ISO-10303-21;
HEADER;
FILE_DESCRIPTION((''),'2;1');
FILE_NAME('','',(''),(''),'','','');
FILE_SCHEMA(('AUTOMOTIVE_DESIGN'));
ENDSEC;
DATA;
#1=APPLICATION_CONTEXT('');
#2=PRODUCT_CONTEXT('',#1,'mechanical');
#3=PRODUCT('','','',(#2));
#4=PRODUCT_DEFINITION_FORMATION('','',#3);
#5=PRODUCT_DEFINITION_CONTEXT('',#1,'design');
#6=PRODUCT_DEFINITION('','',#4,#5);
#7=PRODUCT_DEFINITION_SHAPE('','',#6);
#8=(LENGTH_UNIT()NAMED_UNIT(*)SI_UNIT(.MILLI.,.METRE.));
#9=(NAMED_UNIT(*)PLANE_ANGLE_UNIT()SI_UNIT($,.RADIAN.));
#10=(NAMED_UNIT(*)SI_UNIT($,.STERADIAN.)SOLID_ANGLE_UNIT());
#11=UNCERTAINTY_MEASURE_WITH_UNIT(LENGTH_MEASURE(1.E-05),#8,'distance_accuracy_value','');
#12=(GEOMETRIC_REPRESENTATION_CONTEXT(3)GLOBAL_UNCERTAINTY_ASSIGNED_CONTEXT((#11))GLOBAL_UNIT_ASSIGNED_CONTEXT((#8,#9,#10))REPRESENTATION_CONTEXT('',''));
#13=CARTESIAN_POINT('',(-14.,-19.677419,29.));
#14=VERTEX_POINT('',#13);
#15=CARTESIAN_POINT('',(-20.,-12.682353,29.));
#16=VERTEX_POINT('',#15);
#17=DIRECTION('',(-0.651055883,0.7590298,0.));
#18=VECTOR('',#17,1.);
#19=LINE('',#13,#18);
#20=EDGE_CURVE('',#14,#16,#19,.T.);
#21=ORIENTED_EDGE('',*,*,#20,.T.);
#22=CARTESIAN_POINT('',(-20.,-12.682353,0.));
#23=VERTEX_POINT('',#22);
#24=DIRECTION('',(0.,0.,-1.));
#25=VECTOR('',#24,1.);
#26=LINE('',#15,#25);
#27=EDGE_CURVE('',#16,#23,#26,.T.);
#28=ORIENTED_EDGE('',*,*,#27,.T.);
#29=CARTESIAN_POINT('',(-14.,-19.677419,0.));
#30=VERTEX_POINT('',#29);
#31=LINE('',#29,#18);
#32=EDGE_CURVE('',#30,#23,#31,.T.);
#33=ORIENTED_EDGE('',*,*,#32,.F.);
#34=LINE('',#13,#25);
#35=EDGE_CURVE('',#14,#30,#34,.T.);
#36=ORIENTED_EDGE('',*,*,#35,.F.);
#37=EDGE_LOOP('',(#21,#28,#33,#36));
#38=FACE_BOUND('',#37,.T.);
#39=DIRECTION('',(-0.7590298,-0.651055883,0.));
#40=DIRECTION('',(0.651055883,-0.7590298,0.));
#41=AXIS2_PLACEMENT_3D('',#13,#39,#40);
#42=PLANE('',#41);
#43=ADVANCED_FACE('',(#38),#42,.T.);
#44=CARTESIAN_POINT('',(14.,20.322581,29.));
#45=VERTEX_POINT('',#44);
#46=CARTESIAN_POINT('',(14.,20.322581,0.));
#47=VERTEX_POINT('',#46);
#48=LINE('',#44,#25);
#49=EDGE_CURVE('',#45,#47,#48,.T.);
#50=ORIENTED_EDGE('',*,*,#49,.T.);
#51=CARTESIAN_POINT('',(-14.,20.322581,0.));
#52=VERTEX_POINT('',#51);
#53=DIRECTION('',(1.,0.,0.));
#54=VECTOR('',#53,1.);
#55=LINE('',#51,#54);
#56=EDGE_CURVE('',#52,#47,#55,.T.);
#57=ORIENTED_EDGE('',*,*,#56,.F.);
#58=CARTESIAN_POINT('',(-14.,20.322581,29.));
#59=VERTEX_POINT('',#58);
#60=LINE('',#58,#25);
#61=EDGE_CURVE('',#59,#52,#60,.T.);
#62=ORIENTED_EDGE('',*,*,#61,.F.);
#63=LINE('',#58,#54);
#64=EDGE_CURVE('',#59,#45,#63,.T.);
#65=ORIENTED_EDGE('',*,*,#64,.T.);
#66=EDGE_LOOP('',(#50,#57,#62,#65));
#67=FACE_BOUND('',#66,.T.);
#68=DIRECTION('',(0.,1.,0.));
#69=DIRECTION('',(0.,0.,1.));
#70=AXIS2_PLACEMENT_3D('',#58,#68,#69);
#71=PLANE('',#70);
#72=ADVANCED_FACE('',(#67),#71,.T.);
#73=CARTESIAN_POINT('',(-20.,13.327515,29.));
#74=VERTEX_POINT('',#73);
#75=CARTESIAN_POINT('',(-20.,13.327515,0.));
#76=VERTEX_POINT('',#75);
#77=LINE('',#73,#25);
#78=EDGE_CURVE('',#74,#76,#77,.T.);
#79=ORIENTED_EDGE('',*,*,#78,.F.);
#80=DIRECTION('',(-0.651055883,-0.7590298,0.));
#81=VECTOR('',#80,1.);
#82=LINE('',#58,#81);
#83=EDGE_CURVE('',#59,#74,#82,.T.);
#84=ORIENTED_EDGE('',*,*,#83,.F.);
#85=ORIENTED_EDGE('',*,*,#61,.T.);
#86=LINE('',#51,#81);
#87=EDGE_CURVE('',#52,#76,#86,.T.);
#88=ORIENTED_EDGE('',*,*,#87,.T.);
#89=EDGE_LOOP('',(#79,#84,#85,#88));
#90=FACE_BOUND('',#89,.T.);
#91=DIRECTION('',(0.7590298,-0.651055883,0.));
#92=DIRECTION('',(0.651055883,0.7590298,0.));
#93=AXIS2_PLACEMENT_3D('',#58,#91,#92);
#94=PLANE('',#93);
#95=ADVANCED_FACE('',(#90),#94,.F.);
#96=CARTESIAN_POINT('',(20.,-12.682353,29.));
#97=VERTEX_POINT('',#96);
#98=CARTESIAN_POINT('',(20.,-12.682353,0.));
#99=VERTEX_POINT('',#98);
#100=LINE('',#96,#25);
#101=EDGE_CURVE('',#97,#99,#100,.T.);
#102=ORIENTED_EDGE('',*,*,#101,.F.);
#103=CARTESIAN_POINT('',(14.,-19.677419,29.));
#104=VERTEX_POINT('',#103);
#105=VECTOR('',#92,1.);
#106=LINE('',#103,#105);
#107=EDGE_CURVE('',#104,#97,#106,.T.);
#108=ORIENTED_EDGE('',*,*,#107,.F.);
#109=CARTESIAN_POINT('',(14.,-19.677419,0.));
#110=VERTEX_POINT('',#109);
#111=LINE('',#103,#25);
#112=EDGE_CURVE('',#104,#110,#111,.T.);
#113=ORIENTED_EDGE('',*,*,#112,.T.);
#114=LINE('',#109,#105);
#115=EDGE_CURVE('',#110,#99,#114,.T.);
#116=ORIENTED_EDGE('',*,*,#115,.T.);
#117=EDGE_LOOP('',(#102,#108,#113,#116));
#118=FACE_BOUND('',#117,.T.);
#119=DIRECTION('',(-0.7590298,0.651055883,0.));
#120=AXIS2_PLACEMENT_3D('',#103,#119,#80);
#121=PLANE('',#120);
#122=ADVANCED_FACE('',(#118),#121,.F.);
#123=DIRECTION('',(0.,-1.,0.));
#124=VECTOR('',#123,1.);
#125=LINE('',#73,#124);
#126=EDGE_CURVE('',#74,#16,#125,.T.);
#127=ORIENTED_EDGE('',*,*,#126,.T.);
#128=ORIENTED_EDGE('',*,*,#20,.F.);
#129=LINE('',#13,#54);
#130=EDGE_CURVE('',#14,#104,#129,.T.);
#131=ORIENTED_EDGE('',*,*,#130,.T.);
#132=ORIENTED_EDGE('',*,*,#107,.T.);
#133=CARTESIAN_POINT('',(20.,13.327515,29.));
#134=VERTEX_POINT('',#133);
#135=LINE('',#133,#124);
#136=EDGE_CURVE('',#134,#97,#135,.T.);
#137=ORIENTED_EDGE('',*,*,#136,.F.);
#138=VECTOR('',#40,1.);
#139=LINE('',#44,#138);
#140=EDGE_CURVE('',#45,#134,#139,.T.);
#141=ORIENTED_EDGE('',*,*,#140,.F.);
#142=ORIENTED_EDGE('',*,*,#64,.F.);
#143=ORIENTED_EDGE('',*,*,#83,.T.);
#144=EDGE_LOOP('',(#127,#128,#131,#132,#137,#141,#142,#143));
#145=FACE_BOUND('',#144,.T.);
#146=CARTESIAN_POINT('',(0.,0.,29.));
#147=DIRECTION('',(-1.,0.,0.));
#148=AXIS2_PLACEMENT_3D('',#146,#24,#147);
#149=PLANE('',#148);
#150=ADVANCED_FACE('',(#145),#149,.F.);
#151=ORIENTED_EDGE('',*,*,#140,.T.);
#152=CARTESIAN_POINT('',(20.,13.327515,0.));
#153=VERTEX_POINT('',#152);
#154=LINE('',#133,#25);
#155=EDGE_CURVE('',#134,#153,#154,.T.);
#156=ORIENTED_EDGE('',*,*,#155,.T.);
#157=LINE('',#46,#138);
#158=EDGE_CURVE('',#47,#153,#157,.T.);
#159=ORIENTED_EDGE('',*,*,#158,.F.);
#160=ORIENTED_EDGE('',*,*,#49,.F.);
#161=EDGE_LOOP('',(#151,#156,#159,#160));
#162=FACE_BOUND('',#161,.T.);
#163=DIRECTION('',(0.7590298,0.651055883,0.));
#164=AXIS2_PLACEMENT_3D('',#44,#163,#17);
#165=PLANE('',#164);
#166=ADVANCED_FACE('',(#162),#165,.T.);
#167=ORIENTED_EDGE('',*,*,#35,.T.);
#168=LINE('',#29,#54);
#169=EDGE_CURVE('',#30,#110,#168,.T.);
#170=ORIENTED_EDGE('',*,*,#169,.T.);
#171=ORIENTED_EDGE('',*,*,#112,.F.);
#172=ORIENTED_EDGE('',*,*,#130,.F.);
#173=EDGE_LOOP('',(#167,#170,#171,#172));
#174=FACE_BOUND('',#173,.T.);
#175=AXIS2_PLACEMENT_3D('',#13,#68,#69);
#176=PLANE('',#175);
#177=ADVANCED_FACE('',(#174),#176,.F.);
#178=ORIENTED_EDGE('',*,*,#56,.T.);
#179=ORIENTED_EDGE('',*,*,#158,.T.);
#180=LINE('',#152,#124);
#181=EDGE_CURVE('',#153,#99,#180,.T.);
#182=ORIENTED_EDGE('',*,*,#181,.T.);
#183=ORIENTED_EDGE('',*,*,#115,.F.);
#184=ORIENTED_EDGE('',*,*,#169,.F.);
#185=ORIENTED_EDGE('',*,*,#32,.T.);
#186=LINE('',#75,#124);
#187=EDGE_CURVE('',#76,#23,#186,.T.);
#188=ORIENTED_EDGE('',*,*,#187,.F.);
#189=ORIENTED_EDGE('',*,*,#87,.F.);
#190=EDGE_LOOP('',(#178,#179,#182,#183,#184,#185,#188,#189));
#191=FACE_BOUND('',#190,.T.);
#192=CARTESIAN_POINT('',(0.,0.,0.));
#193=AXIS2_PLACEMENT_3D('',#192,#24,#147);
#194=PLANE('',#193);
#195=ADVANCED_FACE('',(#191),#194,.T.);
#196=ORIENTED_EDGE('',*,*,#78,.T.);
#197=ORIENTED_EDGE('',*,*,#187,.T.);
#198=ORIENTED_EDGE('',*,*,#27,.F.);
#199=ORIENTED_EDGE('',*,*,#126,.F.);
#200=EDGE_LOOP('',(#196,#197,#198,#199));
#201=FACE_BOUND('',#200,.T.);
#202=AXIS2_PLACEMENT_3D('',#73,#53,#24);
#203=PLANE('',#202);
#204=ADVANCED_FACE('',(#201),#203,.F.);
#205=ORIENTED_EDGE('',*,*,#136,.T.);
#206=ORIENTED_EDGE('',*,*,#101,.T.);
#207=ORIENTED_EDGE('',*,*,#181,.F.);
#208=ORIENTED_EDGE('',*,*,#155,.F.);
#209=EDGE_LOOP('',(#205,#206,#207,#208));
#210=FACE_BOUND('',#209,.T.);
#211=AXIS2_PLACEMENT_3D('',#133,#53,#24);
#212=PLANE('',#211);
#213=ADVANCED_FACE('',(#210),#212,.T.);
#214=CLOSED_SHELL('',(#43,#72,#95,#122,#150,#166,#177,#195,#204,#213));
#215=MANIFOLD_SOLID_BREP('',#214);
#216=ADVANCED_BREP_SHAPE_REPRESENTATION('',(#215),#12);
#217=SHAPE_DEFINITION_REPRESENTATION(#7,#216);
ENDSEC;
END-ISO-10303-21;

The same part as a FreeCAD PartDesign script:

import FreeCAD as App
import Part
import Sketcher
from FreeCAD import Vector


def add_polygon(sketch, points):
    """Adds a closed chain of lines whose ends are joined by coincident constraints."""
    first, n = sketch.GeometryCount, len(points)
    for a, b in zip(points, points[1:] + points[:1]):
        sketch.addGeometry(Part.LineSegment(App.Vector(*a, 0), App.Vector(*b, 0)), False)
    for i in range(n):
        sketch.addConstraint(Sketcher.Constraint("Coincident", first + i, 2, first + (i + 1) % n, 1))

doc = App.newDocument("Part")
params = doc.addObject("Spreadsheet::Sheet", "Params")
for row, (alias, value) in enumerate([
    ("sketch1_width", "28 mm"),
    ("pad1_length", "29 mm"),
], start=1):
    params.set(f"A{row}", alias)
    params.set(f"B{row}", "=" + value)
    params.setAlias(f"B{row}", alias)

body = doc.addObject("PartDesign::Body", "Body")

sketch1 = body.newObject("Sketcher::SketchObject", "Sketch")
sketch1.AttachmentSupport = (doc.getObject("XY_Plane"), [""])
sketch1.MapMode = "FlatFace"
add_polygon(sketch1, [(14, 20), (-14, 20), (-20, 13), (-20, -13), (-14, -20), (14, -20), (20, -13), (20, 13)])
sketch1.addConstraint([
    Sketcher.Constraint("Horizontal", 0),
    Sketcher.Constraint("Vertical", 2),
    Sketcher.Constraint("Horizontal", 4),
    Sketcher.Constraint("Vertical", 6),
    Sketcher.Constraint("Symmetric", 2, 2, 5, 2, -2),
    Sketcher.Constraint("Parallel", 1, 5),
    Sketcher.Constraint("Parallel", 3, 7),
    Sketcher.Constraint("Horizontal", 1, 2, 6, 2),
    Sketcher.Constraint("Vertical", 0, 2, 3, 2),
    Sketcher.Constraint("Vertical", 4, 2, 7, 2),
    Sketcher.Constraint("DistanceX", 0, 2, 0, 1, 28.0),
    Sketcher.Constraint("DistanceX", 1, 2, -1, 1, 20.0),
    Sketcher.Constraint("DistanceY", 3, 2, 0, 2, 40.0),
    Sketcher.Constraint("Distance", 1, 9.215799),
    Sketcher.Constraint("DistanceY", -1, 1, 0, 2, 20.322581),
])
sketch1.setExpression("Constraints[18]", "Params.sketch1_width")
pad1 = body.newObject("PartDesign::Pad", "Pad")
pad1.Profile = sketch1
pad1.setExpression("Length", "Params.pad1_length")

doc.recompute()
